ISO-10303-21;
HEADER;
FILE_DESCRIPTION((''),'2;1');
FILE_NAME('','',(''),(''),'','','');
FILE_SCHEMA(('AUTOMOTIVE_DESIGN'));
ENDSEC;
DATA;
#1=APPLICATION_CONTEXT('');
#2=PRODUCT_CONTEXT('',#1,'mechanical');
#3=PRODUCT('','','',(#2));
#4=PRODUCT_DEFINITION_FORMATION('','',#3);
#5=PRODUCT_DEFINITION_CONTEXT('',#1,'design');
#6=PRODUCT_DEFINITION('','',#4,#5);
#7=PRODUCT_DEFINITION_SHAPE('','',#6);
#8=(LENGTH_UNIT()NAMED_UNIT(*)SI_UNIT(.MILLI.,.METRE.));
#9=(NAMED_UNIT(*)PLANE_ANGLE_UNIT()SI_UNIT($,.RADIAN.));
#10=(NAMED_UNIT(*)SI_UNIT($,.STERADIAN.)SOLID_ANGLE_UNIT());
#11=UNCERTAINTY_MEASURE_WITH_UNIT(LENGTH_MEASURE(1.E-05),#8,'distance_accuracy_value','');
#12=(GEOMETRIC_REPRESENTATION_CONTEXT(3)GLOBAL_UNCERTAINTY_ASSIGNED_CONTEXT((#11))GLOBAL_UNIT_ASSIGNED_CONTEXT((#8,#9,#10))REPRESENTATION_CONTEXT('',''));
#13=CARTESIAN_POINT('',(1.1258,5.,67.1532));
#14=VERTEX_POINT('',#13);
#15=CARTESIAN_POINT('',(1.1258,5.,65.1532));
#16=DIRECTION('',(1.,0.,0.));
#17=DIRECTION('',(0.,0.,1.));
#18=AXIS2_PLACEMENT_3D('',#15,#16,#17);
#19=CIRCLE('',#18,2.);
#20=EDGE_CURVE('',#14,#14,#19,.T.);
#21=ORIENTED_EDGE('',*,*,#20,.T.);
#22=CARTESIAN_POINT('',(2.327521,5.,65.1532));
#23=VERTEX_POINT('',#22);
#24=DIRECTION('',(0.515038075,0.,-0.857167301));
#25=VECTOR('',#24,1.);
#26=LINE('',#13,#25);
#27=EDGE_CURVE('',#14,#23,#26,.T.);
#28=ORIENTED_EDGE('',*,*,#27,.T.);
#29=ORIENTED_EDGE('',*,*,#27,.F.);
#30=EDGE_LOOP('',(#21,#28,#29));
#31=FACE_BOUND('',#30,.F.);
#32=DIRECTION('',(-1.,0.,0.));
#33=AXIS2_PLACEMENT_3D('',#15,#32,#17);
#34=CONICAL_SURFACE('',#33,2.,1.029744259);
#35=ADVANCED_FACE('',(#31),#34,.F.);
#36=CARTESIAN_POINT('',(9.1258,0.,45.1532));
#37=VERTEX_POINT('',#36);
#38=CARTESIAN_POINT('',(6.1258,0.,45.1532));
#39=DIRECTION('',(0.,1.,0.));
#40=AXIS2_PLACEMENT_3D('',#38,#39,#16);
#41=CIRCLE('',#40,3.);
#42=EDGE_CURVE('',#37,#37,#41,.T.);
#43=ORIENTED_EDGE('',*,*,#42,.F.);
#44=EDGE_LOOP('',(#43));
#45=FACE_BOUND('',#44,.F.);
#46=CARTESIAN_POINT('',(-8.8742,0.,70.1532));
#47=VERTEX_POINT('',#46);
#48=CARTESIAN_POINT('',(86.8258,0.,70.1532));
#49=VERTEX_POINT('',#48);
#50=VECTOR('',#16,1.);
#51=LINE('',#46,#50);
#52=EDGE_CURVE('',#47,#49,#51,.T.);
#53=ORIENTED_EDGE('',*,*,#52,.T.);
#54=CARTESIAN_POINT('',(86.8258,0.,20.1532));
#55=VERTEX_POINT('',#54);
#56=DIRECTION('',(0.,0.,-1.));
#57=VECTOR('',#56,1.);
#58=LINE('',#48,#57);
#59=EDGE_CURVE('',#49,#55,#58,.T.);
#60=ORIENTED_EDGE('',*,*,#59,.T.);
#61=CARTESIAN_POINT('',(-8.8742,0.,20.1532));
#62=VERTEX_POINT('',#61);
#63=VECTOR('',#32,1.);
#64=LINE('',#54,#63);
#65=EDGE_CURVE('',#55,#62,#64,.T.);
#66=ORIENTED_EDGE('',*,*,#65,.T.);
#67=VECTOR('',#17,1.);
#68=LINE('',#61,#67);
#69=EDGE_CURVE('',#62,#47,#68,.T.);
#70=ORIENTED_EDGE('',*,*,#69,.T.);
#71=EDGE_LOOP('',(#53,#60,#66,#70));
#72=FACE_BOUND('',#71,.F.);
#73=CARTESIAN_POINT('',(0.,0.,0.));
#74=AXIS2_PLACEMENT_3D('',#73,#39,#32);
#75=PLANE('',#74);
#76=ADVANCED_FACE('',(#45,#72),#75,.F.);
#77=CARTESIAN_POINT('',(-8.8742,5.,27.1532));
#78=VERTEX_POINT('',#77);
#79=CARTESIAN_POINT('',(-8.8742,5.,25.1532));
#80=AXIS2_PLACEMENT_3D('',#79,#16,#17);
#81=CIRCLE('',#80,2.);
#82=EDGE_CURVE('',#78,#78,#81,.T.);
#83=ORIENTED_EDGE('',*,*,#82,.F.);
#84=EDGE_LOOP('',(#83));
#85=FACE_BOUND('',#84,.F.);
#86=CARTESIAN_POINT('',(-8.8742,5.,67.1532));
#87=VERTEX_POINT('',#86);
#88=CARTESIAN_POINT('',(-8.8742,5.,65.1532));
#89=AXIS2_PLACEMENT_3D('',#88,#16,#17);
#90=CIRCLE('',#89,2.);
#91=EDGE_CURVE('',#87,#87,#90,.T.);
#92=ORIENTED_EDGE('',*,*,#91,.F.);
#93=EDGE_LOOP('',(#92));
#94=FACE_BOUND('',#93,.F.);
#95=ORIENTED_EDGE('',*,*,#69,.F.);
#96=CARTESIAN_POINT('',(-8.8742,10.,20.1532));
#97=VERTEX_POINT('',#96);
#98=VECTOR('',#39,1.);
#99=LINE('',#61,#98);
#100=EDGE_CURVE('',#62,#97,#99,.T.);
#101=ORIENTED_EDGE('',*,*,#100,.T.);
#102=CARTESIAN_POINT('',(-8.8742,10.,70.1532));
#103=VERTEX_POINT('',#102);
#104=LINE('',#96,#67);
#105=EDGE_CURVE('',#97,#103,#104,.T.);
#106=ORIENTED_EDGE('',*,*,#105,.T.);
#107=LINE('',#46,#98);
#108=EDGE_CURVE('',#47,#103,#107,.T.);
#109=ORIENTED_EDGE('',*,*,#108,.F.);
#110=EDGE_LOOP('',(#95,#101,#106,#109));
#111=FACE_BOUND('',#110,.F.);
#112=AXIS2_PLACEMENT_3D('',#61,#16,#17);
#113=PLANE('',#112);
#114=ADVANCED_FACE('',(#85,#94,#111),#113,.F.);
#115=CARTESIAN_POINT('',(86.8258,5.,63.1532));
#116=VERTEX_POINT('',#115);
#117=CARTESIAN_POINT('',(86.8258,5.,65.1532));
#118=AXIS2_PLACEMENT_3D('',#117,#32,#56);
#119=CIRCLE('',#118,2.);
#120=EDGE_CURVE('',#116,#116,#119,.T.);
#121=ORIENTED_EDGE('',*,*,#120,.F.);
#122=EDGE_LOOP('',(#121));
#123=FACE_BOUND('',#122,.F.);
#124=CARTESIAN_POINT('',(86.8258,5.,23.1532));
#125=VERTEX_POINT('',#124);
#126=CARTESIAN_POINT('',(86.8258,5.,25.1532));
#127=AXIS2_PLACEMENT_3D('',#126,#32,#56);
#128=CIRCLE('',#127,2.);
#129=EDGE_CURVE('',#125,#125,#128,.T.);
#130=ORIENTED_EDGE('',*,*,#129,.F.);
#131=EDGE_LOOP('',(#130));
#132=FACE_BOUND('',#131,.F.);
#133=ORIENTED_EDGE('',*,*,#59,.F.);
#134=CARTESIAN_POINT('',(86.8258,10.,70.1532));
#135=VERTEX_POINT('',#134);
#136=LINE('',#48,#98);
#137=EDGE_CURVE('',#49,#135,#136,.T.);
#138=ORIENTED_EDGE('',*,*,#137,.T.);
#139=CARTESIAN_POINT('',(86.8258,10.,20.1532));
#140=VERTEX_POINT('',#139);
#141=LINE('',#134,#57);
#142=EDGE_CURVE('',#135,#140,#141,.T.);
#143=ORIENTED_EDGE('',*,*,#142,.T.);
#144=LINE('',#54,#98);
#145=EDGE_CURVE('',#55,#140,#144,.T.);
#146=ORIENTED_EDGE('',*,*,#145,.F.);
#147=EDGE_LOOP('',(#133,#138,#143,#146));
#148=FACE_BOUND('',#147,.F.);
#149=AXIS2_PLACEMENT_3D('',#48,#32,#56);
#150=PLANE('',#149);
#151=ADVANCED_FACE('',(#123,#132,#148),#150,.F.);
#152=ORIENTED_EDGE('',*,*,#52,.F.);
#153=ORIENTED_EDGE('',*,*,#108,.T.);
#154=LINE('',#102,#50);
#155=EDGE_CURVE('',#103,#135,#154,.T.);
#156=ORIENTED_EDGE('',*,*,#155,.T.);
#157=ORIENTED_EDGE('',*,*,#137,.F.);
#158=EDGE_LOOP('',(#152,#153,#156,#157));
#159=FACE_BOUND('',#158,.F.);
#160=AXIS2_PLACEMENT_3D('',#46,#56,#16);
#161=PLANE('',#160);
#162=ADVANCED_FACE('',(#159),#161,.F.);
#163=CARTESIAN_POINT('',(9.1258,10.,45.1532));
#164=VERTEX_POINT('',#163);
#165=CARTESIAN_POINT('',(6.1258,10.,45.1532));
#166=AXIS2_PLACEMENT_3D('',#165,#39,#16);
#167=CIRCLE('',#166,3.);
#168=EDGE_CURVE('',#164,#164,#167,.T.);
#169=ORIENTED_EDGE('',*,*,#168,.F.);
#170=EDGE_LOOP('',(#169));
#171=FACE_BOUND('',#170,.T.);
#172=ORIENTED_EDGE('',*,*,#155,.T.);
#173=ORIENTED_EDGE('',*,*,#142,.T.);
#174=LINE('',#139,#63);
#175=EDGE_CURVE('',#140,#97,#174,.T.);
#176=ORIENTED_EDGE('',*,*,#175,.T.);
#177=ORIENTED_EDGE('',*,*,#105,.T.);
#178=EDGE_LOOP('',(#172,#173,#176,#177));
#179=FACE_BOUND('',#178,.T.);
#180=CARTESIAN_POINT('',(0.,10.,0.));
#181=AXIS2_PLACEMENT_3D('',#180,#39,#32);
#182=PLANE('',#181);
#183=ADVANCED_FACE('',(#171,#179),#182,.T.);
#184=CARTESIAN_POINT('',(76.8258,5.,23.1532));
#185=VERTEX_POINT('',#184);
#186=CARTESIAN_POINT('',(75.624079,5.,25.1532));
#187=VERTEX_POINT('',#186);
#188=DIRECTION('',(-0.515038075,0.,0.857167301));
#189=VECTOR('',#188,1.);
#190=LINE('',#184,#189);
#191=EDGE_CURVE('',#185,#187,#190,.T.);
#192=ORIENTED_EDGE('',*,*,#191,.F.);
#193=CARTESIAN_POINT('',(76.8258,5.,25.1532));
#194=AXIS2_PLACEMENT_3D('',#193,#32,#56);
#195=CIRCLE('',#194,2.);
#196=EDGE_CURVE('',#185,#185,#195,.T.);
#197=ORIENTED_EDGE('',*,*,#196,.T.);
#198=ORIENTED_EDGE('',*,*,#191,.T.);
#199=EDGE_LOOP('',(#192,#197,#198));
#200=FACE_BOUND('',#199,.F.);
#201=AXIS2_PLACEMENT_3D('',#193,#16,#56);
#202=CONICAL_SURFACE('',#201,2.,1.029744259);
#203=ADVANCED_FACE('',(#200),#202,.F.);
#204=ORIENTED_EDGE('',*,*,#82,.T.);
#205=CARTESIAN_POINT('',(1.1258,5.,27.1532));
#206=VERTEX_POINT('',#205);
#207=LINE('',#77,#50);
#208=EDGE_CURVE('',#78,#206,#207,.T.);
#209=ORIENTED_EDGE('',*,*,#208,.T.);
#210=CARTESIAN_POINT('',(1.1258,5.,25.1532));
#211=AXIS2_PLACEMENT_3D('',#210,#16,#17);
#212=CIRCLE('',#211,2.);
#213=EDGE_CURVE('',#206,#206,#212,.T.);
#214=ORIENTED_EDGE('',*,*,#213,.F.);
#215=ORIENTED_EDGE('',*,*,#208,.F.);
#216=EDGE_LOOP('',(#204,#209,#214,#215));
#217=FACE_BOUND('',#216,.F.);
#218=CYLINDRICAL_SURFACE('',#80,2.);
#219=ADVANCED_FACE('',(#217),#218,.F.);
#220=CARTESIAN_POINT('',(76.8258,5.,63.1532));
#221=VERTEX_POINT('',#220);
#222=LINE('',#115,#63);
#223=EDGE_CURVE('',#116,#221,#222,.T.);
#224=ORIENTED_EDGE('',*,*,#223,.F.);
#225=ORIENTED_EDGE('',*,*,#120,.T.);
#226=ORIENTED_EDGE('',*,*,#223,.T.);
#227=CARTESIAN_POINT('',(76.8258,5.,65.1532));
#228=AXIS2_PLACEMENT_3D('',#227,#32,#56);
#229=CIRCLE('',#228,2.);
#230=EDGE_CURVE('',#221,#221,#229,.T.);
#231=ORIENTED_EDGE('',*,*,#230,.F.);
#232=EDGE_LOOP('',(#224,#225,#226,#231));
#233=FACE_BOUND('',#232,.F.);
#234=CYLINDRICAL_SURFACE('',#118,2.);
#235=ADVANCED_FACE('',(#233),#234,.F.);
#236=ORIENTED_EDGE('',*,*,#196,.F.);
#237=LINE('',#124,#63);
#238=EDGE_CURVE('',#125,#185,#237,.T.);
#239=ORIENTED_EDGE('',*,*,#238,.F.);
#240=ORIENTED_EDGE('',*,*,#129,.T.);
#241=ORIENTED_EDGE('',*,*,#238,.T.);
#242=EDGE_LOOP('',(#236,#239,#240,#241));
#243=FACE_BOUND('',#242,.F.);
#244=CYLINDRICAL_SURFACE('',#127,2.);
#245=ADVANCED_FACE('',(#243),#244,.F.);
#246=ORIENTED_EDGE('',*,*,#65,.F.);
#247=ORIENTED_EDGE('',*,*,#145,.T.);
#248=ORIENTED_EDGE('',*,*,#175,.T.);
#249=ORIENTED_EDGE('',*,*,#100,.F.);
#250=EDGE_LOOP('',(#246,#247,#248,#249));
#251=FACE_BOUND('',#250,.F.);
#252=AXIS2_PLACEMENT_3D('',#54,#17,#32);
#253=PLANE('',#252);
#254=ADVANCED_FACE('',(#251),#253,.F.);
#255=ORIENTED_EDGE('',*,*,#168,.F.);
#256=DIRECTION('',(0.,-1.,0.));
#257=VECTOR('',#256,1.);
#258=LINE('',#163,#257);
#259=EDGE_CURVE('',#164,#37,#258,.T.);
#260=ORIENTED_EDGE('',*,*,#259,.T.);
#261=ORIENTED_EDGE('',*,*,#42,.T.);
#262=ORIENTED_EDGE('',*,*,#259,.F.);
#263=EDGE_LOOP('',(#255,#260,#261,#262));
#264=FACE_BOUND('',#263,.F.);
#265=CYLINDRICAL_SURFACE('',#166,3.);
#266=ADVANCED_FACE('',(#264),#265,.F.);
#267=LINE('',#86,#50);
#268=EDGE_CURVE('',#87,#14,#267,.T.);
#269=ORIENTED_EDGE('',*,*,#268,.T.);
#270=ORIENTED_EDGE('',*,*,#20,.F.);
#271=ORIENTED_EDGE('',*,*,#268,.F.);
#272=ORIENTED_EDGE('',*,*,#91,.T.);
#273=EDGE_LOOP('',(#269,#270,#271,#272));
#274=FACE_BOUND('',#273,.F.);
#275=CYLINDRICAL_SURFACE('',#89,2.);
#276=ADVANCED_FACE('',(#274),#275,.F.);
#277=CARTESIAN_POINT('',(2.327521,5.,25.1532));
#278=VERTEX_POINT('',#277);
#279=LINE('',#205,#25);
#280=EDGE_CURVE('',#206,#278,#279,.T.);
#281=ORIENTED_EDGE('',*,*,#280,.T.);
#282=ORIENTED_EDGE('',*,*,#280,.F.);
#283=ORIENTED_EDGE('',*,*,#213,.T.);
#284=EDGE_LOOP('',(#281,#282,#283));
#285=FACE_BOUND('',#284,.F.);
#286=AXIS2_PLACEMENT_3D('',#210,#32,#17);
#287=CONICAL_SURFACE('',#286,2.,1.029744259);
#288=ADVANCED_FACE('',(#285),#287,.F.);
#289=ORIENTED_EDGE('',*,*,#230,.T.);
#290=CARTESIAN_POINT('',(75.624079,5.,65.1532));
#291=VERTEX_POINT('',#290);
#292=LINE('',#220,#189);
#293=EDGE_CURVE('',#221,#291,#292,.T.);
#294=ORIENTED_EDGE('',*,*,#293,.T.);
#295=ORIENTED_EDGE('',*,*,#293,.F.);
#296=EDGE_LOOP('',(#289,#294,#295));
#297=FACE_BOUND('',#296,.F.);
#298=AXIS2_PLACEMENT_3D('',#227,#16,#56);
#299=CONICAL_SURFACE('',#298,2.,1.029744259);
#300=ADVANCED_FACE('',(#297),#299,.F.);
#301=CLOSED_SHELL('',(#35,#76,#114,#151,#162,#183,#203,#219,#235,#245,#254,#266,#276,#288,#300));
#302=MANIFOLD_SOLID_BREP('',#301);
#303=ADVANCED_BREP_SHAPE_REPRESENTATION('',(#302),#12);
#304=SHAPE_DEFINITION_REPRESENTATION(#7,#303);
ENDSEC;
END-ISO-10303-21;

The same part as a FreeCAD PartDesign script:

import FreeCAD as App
import Part
import Sketcher


def add_polygon(sketch, points):
    """Adds a closed chain of lines whose ends are joined by coincident constraints."""
    first, n = sketch.GeometryCount, len(points)
    for a, b in zip(points, points[1:] + points[:1]):
        sketch.addGeometry(Part.LineSegment(App.Vector(*a, 0), App.Vector(*b, 0)), False)
    for i in range(n):
        sketch.addConstraint(Sketcher.Constraint("Coincident", first + i, 2, first + (i + 1) % n, 1))

doc = App.newDocument("Part")
body = doc.addObject("PartDesign::Body", "Body")

# Sketch on XZ plane
sketch1 = body.newObject("Sketcher::SketchObject", "Sketch")
sketch1.AttachmentSupport = (doc.getObject("XZ_Plane"), [""])
sketch1.MapMode = "FlatFace"
add_polygon(sketch1, [(-8.8742, 20.1532), (-8.8742, 70.1532), (86.8258, 70.1532), (86.8258, 20.1532)])  # lines 0-3
sketch1.addConstraint([
    Sketcher.Constraint("Vertical", 0),
    Sketcher.Constraint("Horizontal", 1),
    Sketcher.Constraint("Vertical", 2),
    Sketcher.Constraint("Horizontal", 3),
    Sketcher.Constraint("DistanceY", 0, 1, 0, 2, 50.0),
    Sketcher.Constraint("DistanceX", 1, 1, 1, 2, 95.7),
    Sketcher.Constraint("DistanceX", 0, 2, -1, 1, 8.8742),
    Sketcher.Constraint("DistanceY", -1, 1, 0, 2, 70.1532),
])
pad1 = body.newObject("PartDesign::Pad", "Pad")
pad1.Profile = sketch1
pad1.Length = 10
pad1.Reversed = True

# Sketch on YZ plane
sketch2 = body.newObject("Sketcher::SketchObject", "Sketch001")
sketch2.AttachmentSupport = (doc.getObject("YZ_Plane"), [""])
sketch2.MapMode = "FlatFace"
sketch2.AttachmentOffset = App.Placement(App.Vector(0, 0, -8.8742), App.Rotation())
sketch2.addGeometry([
    Part.Circle(App.Vector(5, 25.1532, 0), App.Vector(0, 0, 1), 2),
    Part.Circle(App.Vector(5, 65.1532, 0), App.Vector(0, 0, 1), 2),
], False)
sketch2.addConstraint([
    Sketcher.Constraint("Equal", 0, 1),
    Sketcher.Constraint("Vertical", 0, 3, 1, 3),
    Sketcher.Constraint("Diameter", 0, 4.0),
    Sketcher.Constraint("DistanceX", -1, 1, 0, 3, 5.0),
    Sketcher.Constraint("DistanceY", 0, 3, 1, 3, 40.0),
    Sketcher.Constraint("DistanceY", -1, 1, 0, 3, 25.1532),
])
doc.recompute()
hole = body.newObject("PartDesign::Hole", "Hole")
hole.Profile = sketch2
hole.ThreadType = "None"
hole.Diameter = 4
hole.DepthType = "Dimension"
hole.Depth = 10
hole.DrillPoint = "Angled"
hole.DrillPointAngle = 118
hole.Reversed = True

# Sketch on YZ plane
sketch3 = body.newObject("Sketcher::SketchObject", "Sketch002")
sketch3.AttachmentSupport = (doc.getObject("YZ_Plane"), [""])
sketch3.MapMode = "FlatFace"
sketch3.AttachmentOffset = App.Placement(App.Vector(0, 0, 86.8258), App.Rotation())
sketch3.addGeometry([
    Part.Circle(App.Vector(5, 65.1532, 0), App.Vector(0, 0, 1), 2),
    Part.Circle(App.Vector(5, 25.1532, 0), App.Vector(0, 0, 1), 2),
], False)
sketch3.addConstraint([
    Sketcher.Constraint("Equal", 0, 1),
    Sketcher.Constraint("Vertical", 0, 3, 1, 3),
    Sketcher.Constraint("Diameter", 0, 4.0),
    Sketcher.Constraint("DistanceX", -1, 1, 0, 3, 5.0),
    Sketcher.Constraint("DistanceY", 1, 3, 0, 3, 40.0),
    Sketcher.Constraint("DistanceY", -1, 1, 0, 3, 65.1532),
])
doc.recompute()
hole2 = body.newObject("PartDesign::Hole", "Hole001")
hole2.Profile = sketch3
hole2.ThreadType = "None"
hole2.Diameter = 4
hole2.DepthType = "Dimension"
hole2.Depth = 10
hole2.DrillPoint = "Angled"
hole2.DrillPointAngle = 118

# Sketch on XZ plane
sketch4 = body.newObject("Sketcher::SketchObject", "Sketch003")
sketch4.AttachmentSupport = (doc.getObject("XZ_Plane"), [""])
sketch4.MapMode = "FlatFace"
sketch4.AttachmentOffset = App.Placement(App.Vector(0, 0, -10), App.Rotation())
sketch4.addGeometry(Part.Circle(App.Vector(6.1258, 45.1532, 0), App.Vector(0, 0, 1), 3), False)
sketch4.addConstraint([
    Sketcher.Constraint("Diameter", 0, 6.0),
    Sketcher.Constraint("DistanceX", -1, 1, 0, 3, 6.1258),
    Sketcher.Constraint("DistanceY", -1, 1, 0, 3, 45.1532),
])
pocket1 = body.newObject("PartDesign::Pocket", "Pocket")
pocket1.Profile = sketch4
pocket1.Length = 10
pocket1.Reversed = True

doc.recompute()
